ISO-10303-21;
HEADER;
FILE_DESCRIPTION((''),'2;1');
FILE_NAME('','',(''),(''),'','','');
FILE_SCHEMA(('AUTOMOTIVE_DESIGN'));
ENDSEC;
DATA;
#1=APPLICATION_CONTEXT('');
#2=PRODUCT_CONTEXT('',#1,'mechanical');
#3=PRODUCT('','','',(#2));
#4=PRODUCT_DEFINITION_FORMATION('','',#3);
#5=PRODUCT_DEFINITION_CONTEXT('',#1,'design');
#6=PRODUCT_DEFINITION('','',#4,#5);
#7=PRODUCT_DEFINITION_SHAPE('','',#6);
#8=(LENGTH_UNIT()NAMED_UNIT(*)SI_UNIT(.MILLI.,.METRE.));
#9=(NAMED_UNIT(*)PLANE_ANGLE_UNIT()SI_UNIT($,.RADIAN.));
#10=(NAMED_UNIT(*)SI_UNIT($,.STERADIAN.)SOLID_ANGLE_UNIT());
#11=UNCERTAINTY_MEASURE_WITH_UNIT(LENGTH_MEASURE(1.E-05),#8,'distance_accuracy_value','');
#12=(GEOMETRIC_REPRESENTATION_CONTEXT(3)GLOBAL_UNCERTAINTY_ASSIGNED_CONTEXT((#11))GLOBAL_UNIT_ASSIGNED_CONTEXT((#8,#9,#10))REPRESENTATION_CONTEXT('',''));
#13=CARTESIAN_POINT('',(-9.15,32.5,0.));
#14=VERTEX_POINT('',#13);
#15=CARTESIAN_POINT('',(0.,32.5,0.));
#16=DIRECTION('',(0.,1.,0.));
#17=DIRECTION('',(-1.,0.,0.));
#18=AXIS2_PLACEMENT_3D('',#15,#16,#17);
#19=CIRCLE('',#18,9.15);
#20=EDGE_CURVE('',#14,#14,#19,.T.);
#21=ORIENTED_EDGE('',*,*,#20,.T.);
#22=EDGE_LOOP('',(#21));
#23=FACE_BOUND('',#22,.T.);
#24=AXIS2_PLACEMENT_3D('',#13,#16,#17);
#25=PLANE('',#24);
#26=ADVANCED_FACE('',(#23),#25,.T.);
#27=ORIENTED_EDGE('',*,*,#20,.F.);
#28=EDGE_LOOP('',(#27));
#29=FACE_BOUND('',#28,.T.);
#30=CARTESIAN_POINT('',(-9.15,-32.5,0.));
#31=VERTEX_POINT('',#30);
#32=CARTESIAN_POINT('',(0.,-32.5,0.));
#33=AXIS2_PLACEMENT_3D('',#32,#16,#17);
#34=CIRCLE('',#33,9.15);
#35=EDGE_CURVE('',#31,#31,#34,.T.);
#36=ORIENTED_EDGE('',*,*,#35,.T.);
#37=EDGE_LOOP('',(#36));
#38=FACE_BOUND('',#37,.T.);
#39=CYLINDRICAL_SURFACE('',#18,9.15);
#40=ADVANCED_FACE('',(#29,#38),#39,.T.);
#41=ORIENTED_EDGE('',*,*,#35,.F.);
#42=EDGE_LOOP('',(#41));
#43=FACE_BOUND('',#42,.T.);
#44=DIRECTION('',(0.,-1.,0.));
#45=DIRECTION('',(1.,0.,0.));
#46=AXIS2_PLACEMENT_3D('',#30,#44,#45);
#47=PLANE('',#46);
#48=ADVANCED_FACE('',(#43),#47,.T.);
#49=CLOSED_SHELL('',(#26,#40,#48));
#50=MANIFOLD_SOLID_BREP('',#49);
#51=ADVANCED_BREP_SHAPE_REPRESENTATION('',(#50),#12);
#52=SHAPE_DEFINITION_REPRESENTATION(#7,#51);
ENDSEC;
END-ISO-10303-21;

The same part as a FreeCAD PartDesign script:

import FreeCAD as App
import Part
import Sketcher
from FreeCAD import Vector
Q = App.Units.Quantity


def add_polygon(sketch, points):
    """Adds a closed chain of lines whose ends are joined by coincident constraints."""
    first, n = sketch.GeometryCount, len(points)
    for a, b in zip(points, points[1:] + points[:1]):
        sketch.addGeometry(Part.LineSegment(App.Vector(*a, 0), App.Vector(*b, 0)), False)
    for i in range(n):
        sketch.addConstraint(Sketcher.Constraint("Coincident", first + i, 2, first + (i + 1) % n, 1))

doc = App.newDocument("Part")
body = doc.addObject("PartDesign::Body", "Body")

# Sketch on XY plane
sketch1 = doc.addObject("Sketcher::SketchObject", "Sketch")
body.addObject(sketch1)
sketch1.AttachmentSupport = (doc.XY_Plane, [""])
sketch1.MapMode = "FlatFace"
add_polygon(sketch1, [(-9, 32), (-9, -32), (0, -32), (0, 32)])  # lines 0-3
sketch1.addConstraint(Sketcher.Constraint("Vertical", 0))
sketch1.addConstraint(Sketcher.Constraint("Horizontal", 1))
sketch1.addConstraint(Sketcher.Constraint("Vertical", 2))
sketch1.addConstraint(Sketcher.Constraint("Horizontal", 3))
sketch1.addConstraint(Sketcher.Constraint("Symmetric", 1, 2, 2, 2, -1, 1))
sketch1.addConstraint(Sketcher.Constraint("DistanceY", 0, 2, 0, 1, Q("65 mm")))
sketch1.addConstraint(Sketcher.Constraint("DistanceX", 1, 1, 1, 2, Q("9.15 mm")))
revolution = doc.addObject("PartDesign::Revolution", "Revolution")
body.addObject(revolution)
revolution.Profile = sketch1
revolution.ReferenceAxis = (sketch1, ["V_Axis"])
revolution.Angle = 360

doc.recompute()
